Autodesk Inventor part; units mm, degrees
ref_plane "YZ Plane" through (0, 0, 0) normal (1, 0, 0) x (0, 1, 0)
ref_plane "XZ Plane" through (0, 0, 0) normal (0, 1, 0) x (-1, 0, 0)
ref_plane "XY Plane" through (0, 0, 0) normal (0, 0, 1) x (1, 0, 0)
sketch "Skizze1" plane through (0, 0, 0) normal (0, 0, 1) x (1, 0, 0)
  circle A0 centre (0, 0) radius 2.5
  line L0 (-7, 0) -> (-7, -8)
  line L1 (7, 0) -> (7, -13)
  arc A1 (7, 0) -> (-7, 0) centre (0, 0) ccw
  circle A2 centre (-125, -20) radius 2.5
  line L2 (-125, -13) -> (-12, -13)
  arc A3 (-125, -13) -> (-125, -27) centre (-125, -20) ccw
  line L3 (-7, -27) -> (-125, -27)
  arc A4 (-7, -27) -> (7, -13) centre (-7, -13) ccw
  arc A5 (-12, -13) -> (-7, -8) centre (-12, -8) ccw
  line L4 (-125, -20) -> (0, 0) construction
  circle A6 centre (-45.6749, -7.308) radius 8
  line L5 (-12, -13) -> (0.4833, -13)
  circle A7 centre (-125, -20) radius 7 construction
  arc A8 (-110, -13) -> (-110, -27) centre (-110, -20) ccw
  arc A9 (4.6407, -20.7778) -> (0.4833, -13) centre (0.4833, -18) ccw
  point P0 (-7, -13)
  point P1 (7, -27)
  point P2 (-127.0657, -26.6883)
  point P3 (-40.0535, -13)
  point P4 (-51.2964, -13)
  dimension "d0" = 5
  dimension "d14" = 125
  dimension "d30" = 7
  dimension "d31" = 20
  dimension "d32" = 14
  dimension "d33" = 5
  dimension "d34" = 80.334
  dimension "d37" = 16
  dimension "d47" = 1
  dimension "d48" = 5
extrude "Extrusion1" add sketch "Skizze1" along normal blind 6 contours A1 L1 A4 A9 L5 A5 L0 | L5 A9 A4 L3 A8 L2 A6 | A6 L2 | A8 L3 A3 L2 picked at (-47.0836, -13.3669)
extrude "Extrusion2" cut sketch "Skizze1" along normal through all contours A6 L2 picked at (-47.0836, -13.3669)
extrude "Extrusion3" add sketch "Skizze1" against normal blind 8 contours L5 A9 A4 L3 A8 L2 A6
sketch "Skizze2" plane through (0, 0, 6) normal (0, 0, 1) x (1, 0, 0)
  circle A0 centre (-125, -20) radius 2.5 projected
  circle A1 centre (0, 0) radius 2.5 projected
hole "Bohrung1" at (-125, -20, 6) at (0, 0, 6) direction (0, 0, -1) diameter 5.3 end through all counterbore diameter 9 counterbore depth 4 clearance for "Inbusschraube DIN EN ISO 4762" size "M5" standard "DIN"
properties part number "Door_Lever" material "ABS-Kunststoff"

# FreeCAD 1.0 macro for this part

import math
import FreeCAD as App
import Part
import Sketcher
Q = App.Units.Quantity

doc = App.newDocument("Part")
params = doc.addObject("Spreadsheet::Sheet", "Params")
for row, (alias, value) in enumerate([
    ("sketch1_diameter", "5 mm"),
    ("sketch1_radius", "7 mm"),
    ("sketch1_radius2", "5 mm"),
    ("pad1_length", "6 mm"),
    ("sketch2_radius", "8 mm"),
    ("sketch3_radius", "8 mm"),
    ("sketch3_radius2", "7 mm"),
    ("sketch3_radius3", "5 mm"),
    ("sketch3_width", "103 mm"),
    ("pad2_length", "8 mm"),
    ("sketch4_diameter", "5.3 mm"),
    ("hole_diameter", "5.3 mm"),
    ("hole_cbore_diameter", "9 mm"),
    ("hole_cbore_depth", "4 mm"),
], start=1):
    params.set(f"A{row}", alias)
    params.set(f"B{row}", "=" + value)
    params.setAlias(f"B{row}", alias)

body = doc.addObject("PartDesign::Body", "Body")

sketch1 = doc.addObject("Sketcher::SketchObject", "Sketch")
body.addObject(sketch1)
sketch1.AttachmentSupport = (doc.XY_Plane, [""])
sketch1.MapMode = "FlatFace"
sketch1.addGeometry(Part.ArcOfCircle(Part.Circle(App.Vector(0, 0, 0), App.Vector(0, 0, 1), 7), math.radians(0), math.radians(180)), False)
sketch1.addGeometry(Part.LineSegment(App.Vector(-7, 0, 0), App.Vector(-7, -8, 0)), False)
sketch1.addGeometry(Part.ArcOfCircle(Part.Circle(App.Vector(-12, -8, 0), App.Vector(0, 0, 1), 5), math.radians(-90), math.radians(0)), False)
sketch1.addGeometry(Part.LineSegment(App.Vector(-12, -13, 0), App.Vector(-125, -13, 0)), False)
sketch1.addGeometry(Part.ArcOfCircle(Part.Circle(App.Vector(-125, -20, 0), App.Vector(0, 0, 1), 7), math.radians(90), math.radians(270)), False)
sketch1.addGeometry(Part.LineSegment(App.Vector(-125, -27, 0), App.Vector(-7, -27, 0)), False)
sketch1.addGeometry(Part.ArcOfCircle(Part.Circle(App.Vector(-7, -13, 0), App.Vector(0, 0, 1), 14), math.radians(-90), math.radians(0)), False)
sketch1.addGeometry(Part.LineSegment(App.Vector(7, -13, 0), App.Vector(7, 0, 0)), False)
sketch1.addGeometry(Part.Circle(App.Vector(0, 0, 0), App.Vector(0, 0, 1), 2.5), False)
sketch1.addGeometry(Part.Circle(App.Vector(-125, -20, 0), App.Vector(0, 0, 1), 2.5), False)
sketch1.addConstraint(Sketcher.Constraint("Tangent", 0, 2, 1, 1))
sketch1.addConstraint(Sketcher.Constraint("Tangent", 1, 2, 2, 2))
sketch1.addConstraint(Sketcher.Constraint("Tangent", 2, 1, 3, 1))
sketch1.addConstraint(Sketcher.Constraint("Tangent", 3, 2, 4, 1))
sketch1.addConstraint(Sketcher.Constraint("Tangent", 4, 2, 5, 1))
sketch1.addConstraint(Sketcher.Constraint("Tangent", 5, 2, 6, 1))
sketch1.addConstraint(Sketcher.Constraint("Tangent", 6, 2, 7, 1))
sketch1.addConstraint(Sketcher.Constraint("Tangent", 7, 2, 0, 1))
sketch1.addConstraint(Sketcher.Constraint("Vertical", 1))
sketch1.addConstraint(Sketcher.Constraint("Horizontal", 3))
sketch1.addConstraint(Sketcher.Constraint("Horizontal", 5))
sketch1.addConstraint(Sketcher.Constraint("Vertical", 7))
sketch1.addConstraint(Sketcher.Constraint("Coincident", 0, 3, -1, 1))
sketch1.addConstraint(Sketcher.Constraint("Coincident", 8, 3, -1, 1))
sketch1.addConstraint(Sketcher.Constraint("Coincident", 9, 3, 4, 3))
sketch1.addConstraint(Sketcher.Constraint("Equal", 0, 4))
sketch1.addConstraint(Sketcher.Constraint("Equal", 8, 9))
sketch1.addConstraint(Sketcher.Constraint("Horizontal", 6, 3, 2, 1))
sketch1.addConstraint(Sketcher.Constraint("Diameter", 8, Q("5 mm")))
sketch1.addConstraint(Sketcher.Constraint("Radius", 0, Q("7 mm")))
sketch1.addConstraint(Sketcher.Constraint("Radius", 2, Q("5 mm")))
sketch1.addConstraint(Sketcher.Constraint("DistanceX", 4, 3, -1, 1, Q("125 mm")))
sketch1.addConstraint(Sketcher.Constraint("DistanceY", 4, 3, -1, 1, Q("20 mm")))
sketch1.setExpression("Constraints[18]", "Params.sketch1_diameter")
sketch1.setExpression("Constraints[19]", "Params.sketch1_radius")
sketch1.setExpression("Constraints[20]", "Params.sketch1_radius2")
pad1 = doc.addObject("PartDesign::Pad", "Pad")
body.addObject(pad1)
pad1.Profile = sketch1
pad1.setExpression("Length", "Params.pad1_length")

sketch2 = doc.addObject("Sketcher::SketchObject", "Sketch001")
body.addObject(sketch2)
sketch2.AttachmentSupport = (doc.XY_Plane, [""])
sketch2.MapMode = "FlatFace"
sketch2.addGeometry(Part.ArcOfCircle(Part.Circle(App.Vector(-46, -7, 0), App.Vector(0, 0, 1), 8), math.radians(-135), math.radians(-45)), False)
sketch2.addGeometry(Part.LineSegment(App.Vector(-40, -13, 0), App.Vector(-51, -13, 0)), False)
sketch2.addConstraint(Sketcher.Constraint("Coincident", 0, 1, 1, 2))
sketch2.addConstraint(Sketcher.Constraint("Coincident", 1, 1, 0, 2))
sketch2.addConstraint(Sketcher.Constraint("Horizontal", 1))
sketch2.addConstraint(Sketcher.Constraint("Radius", 0, Q("8 mm")))
sketch2.addConstraint(Sketcher.Constraint("DistanceY", 0, 1, -1, 1, Q("13 mm")))
sketch2.addConstraint(Sketcher.Constraint("DistanceX", 1, 2, 1, 1, Q("11.243 mm")))
sketch2.addConstraint(Sketcher.Constraint("DistanceX", 0, 3, -1, 1, Q("45.675 mm")))
sketch2.setExpression("Constraints[3]", "Params.sketch2_radius")
pocket1 = doc.addObject("PartDesign::Pocket", "Pocket")
body.addObject(pocket1)
pocket1.Profile = sketch2
pocket1.Type = "ThroughAll"
pocket1.Reversed = True

sketch3 = doc.addObject("Sketcher::SketchObject", "Sketch002")
body.addObject(sketch3)
sketch3.AttachmentSupport = (doc.XY_Plane, [""])
sketch3.MapMode = "FlatFace"
sketch3.addGeometry(Part.LineSegment(App.Vector(0, -13, 0), App.Vector(-40, -13, 0)), False)
sketch3.addGeometry(Part.ArcOfCircle(Part.Circle(App.Vector(-46, -7, 0), App.Vector(0, 0, 1), 8), math.radians(-135), math.radians(-45)), False)
sketch3.addGeometry(Part.LineSegment(App.Vector(-51, -13, 0), App.Vector(-110, -13, 0)), False)
sketch3.addGeometry(Part.ArcOfCircle(Part.Circle(App.Vector(-110, -20, 0), App.Vector(0, 0, 1), 7), math.radians(90), math.radians(270)), False)
sketch3.addGeometry(Part.LineSegment(App.Vector(-110, -27, 0), App.Vector(-7, -27, 0)), False)
sketch3.addGeometry(Part.ArcOfCircle(Part.Circle(App.Vector(-7, -13, 0), App.Vector(0, 0, 1), 14), math.radians(-90), math.radians(-34)), False)
sketch3.addGeometry(Part.ArcOfCircle(Part.Circle(App.Vector(0, -18, 0), App.Vector(0, 0, 1), 5), math.radians(-34), math.radians(90)), False)
sketch3.addConstraint(Sketcher.Constraint("Coincident", 0, 2, 1, 2))
sketch3.addConstraint(Sketcher.Constraint("Coincident", 1, 1, 2, 1))
sketch3.addConstraint(Sketcher.Constraint("Tangent", 2, 2, 3, 1))
sketch3.addConstraint(Sketcher.Constraint("Tangent", 3, 2, 4, 1))
sketch3.addConstraint(Sketcher.Constraint("Tangent", 4, 2, 5, 1))
sketch3.addConstraint(Sketcher.Constraint("Tangent", 5, 2, 6, 1))
sketch3.addConstraint(Sketcher.Constraint("Tangent", 6, 2, 0, 1))
sketch3.addConstraint(Sketcher.Constraint("Horizontal", 0))
sketch3.addConstraint(Sketcher.Constraint("Horizontal", 2))
sketch3.addConstraint(Sketcher.Constraint("Horizontal", 4))
sketch3.addConstraint(Sketcher.Constraint("Horizontal", 5, 3, 0, 2))
sketch3.addConstraint(Sketcher.Constraint("Horizontal", 0, 2, 1, 1))
sketch3.addConstraint(Sketcher.Constraint("Radius", 1, Q("8 mm")))
sketch3.addConstraint(Sketcher.Constraint("Radius", 3, Q("7 mm")))
sketch3.addConstraint(Sketcher.Constraint("Radius", 6, Q("5 mm")))
sketch3.addConstraint(Sketcher.Constraint("DistanceY", 3, 3, -1, 1, Q("20 mm")))
sketch3.addConstraint(Sketcher.Constraint("DistanceX", 5, 3, -1, 1, Q("7 mm")))
sketch3.addConstraint(Sketcher.Constraint("DistanceX", 4, 1, 4, 2, Q("103 mm")))
sketch3.addConstraint(Sketcher.Constraint("DistanceX", 0, 2, 0, 1, Q("40.5367 mm")))
sketch3.addConstraint(Sketcher.Constraint("DistanceX", 2, 2, 2, 1, Q("58.7036 mm")))
sketch3.setExpression("Constraints[12]", "Params.sketch3_radius")
sketch3.setExpression("Constraints[13]", "Params.sketch3_radius2")
sketch3.setExpression("Constraints[14]", "Params.sketch3_radius3")
sketch3.setExpression("Constraints[17]", "Params.sketch3_width")
pad2 = doc.addObject("PartDesign::Pad", "Pad001")
body.addObject(pad2)
pad2.Profile = sketch3
pad2.setExpression("Length", "Params.pad2_length")
pad2.Reversed = True

sketch4 = doc.addObject("Sketcher::SketchObject", "Sketch003")
body.addObject(sketch4)
sketch4.AttachmentSupport = (doc.XY_Plane, [""])
sketch4.MapMode = "FlatFace"
sketch4.AttachmentOffset = App.Placement(App.Vector(0, 0, 6), App.Rotation())
sketch4.addGeometry(Part.Circle(App.Vector(-125, -20, 0), App.Vector(0, 0, 1), 2.6), False)
sketch4.addGeometry(Part.Circle(App.Vector(0, 0, 0), App.Vector(0, 0, 1), 2.6), False)
sketch4.addConstraint(Sketcher.Constraint("Coincident", 1, 3, -1, 1))
sketch4.addConstraint(Sketcher.Constraint("Equal", 0, 1))
sketch4.addConstraint(Sketcher.Constraint("Diameter", 0, Q("5.3 mm")))
sketch4.addConstraint(Sketcher.Constraint("DistanceX", 0, 3, -1, 1, Q("125 mm")))
sketch4.addConstraint(Sketcher.Constraint("DistanceY", 0, 3, -1, 1, Q("20 mm")))
sketch4.setExpression("Constraints[2]", "Params.sketch4_diameter")
doc.recompute()
hole = doc.addObject("PartDesign::Hole", "Hole")
body.addObject(hole)
hole.Profile = sketch4
hole.ThreadType = "None"
hole.setExpression("Diameter", "Params.hole_diameter")
hole.DepthType = "ThroughAll"
hole.HoleCutType = "Counterbore"
hole.setExpression("HoleCutDiameter", "Params.hole_cbore_diameter")
hole.setExpression("HoleCutDepth", "Params.hole_cbore_depth")

doc.recompute()
